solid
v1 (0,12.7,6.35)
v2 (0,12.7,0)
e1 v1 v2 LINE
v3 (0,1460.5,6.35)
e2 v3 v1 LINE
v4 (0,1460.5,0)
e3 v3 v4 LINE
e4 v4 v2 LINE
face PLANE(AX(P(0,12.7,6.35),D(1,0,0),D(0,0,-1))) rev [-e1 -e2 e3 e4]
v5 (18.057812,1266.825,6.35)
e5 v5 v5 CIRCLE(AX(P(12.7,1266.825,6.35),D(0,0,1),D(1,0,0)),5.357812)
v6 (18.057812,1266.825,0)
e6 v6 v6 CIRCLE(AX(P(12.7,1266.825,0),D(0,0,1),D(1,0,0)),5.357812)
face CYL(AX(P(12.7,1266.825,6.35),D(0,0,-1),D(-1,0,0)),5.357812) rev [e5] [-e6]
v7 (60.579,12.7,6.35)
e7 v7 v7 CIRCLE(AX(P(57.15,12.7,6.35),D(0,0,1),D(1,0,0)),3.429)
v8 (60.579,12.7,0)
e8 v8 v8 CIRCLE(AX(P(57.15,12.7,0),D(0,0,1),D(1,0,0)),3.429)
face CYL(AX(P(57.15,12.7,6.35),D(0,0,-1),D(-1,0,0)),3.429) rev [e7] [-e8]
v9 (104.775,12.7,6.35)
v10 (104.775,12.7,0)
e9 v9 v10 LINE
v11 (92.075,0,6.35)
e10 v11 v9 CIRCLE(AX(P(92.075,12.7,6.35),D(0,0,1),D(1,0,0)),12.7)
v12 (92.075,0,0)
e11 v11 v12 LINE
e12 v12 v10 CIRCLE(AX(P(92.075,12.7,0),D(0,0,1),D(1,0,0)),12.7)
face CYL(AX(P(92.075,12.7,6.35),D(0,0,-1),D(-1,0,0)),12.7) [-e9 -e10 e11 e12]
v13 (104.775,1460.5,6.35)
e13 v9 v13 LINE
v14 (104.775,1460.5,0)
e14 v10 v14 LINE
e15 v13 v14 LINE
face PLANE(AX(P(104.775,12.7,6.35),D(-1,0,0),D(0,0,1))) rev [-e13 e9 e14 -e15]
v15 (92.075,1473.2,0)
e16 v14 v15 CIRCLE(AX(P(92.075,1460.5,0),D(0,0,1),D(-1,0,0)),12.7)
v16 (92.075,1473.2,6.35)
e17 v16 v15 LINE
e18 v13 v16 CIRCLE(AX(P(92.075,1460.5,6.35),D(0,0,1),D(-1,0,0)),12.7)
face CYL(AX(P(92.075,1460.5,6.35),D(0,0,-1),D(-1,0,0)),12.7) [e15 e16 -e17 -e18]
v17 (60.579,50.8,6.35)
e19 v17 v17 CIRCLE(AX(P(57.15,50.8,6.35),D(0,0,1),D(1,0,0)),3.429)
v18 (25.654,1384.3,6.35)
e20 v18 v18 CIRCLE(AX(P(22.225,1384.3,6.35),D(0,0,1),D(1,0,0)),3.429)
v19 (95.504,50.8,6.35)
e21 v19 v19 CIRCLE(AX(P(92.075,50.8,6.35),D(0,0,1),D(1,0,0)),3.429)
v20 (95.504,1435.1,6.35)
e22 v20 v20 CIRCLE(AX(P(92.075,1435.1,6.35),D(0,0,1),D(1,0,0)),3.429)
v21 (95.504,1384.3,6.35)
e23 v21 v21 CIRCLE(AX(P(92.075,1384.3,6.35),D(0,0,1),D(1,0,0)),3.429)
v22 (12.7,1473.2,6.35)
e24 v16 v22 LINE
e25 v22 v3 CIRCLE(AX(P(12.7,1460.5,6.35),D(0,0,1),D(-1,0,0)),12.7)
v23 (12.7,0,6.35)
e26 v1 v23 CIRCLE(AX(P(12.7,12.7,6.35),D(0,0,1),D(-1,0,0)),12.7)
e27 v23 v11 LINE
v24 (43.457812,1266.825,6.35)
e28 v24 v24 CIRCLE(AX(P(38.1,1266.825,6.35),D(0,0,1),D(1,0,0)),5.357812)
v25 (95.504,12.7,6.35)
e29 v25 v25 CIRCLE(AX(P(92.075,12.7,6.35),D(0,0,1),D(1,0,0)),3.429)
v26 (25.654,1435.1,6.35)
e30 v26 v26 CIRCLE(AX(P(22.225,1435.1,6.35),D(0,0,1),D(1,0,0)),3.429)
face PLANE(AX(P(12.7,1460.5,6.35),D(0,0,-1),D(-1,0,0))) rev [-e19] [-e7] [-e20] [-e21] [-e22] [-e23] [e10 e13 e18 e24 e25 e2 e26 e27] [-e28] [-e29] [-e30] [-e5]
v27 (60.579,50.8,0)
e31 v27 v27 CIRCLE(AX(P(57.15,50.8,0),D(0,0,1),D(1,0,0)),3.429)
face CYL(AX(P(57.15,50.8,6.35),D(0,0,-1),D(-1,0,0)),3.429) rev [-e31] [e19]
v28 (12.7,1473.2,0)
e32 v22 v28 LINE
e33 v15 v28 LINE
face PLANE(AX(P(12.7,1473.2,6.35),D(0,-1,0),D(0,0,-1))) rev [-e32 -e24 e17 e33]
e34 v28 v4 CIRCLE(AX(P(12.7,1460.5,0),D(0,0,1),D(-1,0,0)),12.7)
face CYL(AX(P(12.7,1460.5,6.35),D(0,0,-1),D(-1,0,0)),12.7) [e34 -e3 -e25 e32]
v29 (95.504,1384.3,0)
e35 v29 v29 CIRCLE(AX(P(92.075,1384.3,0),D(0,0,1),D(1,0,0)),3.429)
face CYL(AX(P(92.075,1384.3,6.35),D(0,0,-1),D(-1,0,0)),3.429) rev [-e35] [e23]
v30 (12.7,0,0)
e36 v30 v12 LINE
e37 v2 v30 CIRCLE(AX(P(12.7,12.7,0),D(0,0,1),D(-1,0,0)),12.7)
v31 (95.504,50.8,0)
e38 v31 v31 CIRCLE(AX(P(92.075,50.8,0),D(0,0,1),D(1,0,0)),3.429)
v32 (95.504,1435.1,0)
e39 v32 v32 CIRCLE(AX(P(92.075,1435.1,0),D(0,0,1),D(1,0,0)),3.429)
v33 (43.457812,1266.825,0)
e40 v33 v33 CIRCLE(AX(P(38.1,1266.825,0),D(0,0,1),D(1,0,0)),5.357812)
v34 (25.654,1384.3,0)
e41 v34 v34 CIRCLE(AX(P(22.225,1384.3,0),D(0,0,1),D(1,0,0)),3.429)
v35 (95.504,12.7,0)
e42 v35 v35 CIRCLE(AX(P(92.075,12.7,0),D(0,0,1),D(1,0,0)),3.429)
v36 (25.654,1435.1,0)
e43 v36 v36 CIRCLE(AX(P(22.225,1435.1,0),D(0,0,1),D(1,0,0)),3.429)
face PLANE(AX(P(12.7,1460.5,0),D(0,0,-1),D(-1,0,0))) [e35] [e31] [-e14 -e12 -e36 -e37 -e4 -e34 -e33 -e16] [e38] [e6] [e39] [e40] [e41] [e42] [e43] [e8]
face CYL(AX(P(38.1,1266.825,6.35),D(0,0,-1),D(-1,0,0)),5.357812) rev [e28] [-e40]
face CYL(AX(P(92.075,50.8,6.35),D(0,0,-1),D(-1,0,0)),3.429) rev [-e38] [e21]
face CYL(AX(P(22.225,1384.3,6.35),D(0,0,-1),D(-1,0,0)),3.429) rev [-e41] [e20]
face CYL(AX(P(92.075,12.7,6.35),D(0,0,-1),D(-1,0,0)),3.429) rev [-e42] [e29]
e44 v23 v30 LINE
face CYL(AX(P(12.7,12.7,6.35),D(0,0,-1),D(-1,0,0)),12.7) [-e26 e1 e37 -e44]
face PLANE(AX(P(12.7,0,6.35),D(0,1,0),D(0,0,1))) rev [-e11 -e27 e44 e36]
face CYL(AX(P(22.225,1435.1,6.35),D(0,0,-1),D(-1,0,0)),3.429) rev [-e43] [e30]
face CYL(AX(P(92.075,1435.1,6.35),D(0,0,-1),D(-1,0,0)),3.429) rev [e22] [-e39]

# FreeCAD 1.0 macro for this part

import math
import FreeCAD as App
import Part
import Sketcher
Q = App.Units.Quantity

doc = App.newDocument("Part")
body = doc.addObject("PartDesign::Body", "Body")

sketch1 = doc.addObject("Sketcher::SketchObject", "Sketch")
body.addObject(sketch1)
sketch1.AttachmentSupport = (doc.XY_Plane, [""])
sketch1.MapMode = "FlatFace"
sketch1.addGeometry([
    Part.LineSegment(App.Vector(12.7, 0, 0), App.Vector(92.1, 0, 0)),
    Part.ArcOfCircle(Part.Circle(App.Vector(92.1, 12.7, 0), App.Vector(0, 0, 1), 12.7), math.radians(-90), math.radians(0)),
    Part.LineSegment(App.Vector(104.8, 12.7, 0), App.Vector(104.8, 1460.5, 0)),
    Part.ArcOfCircle(Part.Circle(App.Vector(92.1, 1460.5, 0), App.Vector(0, 0, 1), 12.7), math.radians(0), math.radians(90)),
    Part.LineSegment(App.Vector(92.1, 1473.2, 0), App.Vector(12.7, 1473.2, 0)),
    Part.ArcOfCircle(Part.Circle(App.Vector(12.7, 1460.5, 0), App.Vector(0, 0, 1), 12.7), math.radians(90), math.radians(180)),
    Part.LineSegment(App.Vector(0, 1460.5, 0), App.Vector(0, 12.7, 0)),
    Part.ArcOfCircle(Part.Circle(App.Vector(12.7, 12.7, 0), App.Vector(0, 0, 1), 12.7), math.radians(180), math.radians(270)),
    Part.Circle(App.Vector(57.1, 12.7, 0), App.Vector(0, 0, 1), 3.4),
    Part.Circle(App.Vector(57.1, 50.8, 0), App.Vector(0, 0, 1), 3.4),
    Part.Circle(App.Vector(92.1, 12.7, 0), App.Vector(0, 0, 1), 3.4),
    Part.Circle(App.Vector(92.1, 50.8, 0), App.Vector(0, 0, 1), 3.4),
    Part.Circle(App.Vector(12.7, 1266.8, 0), App.Vector(0, 0, 1), 5.4),
    Part.Circle(App.Vector(22.2, 1384.3, 0), App.Vector(0, 0, 1), 3.4),
    Part.Circle(App.Vector(22.2, 1435.1, 0), App.Vector(0, 0, 1), 3.4),
    Part.Circle(App.Vector(38.1, 1266.8, 0), App.Vector(0, 0, 1), 5.4),
    Part.Circle(App.Vector(92.1, 1384.3, 0), App.Vector(0, 0, 1), 3.4),
    Part.Circle(App.Vector(92.1, 1435.1, 0), App.Vector(0, 0, 1), 3.4),
], False)
sketch1.addConstraint([
    Sketcher.Constraint("Tangent", 0, 2, 1, 1),
    Sketcher.Constraint("Tangent", 1, 2, 2, 1),
    Sketcher.Constraint("Tangent", 2, 2, 3, 1),
    Sketcher.Constraint("Tangent", 3, 2, 4, 1),
    Sketcher.Constraint("Tangent", 4, 2, 5, 1),
    Sketcher.Constraint("Tangent", 5, 2, 6, 1),
    Sketcher.Constraint("Tangent", 6, 2, 7, 1),
    Sketcher.Constraint("Tangent", 7, 2, 0, 1),
    Sketcher.Constraint("Horizontal", 0),
    Sketcher.Constraint("Vertical", 2),
    Sketcher.Constraint("Horizontal", 4),
    Sketcher.Constraint("Vertical", 6),
    Sketcher.Constraint("Coincident", 10, 3, 1, 3),
    Sketcher.Constraint("Equal", 1, 3),
    Sketcher.Constraint("Equal", 3, 5),
    Sketcher.Constraint("Equal", 5, 7),
    Sketcher.Constraint("Equal", 8, 9),
    Sketcher.Constraint("Equal", 9, 10),
    Sketcher.Constraint("Equal", 10, 11),
    Sketcher.Constraint("Equal", 11, 13),
    Sketcher.Constraint("Equal", 13, 14),
    Sketcher.Constraint("Equal", 12, 15),
    Sketcher.Constraint("Equal", 14, 16),
    Sketcher.Constraint("Equal", 16, 17),
    Sketcher.Constraint("PointOnObject", 0, 2, -1),
    Sketcher.Constraint("PointOnObject", 5, 2, -2),
    Sketcher.Constraint("Horizontal", 7, 3, 8, 3),
    Sketcher.Constraint("Horizontal", 9, 3, 11, 3),
    Sketcher.Constraint("Horizontal", 12, 3, 15, 3),
    Sketcher.Constraint("Horizontal", 13, 3, 16, 3),
    Sketcher.Constraint("Horizontal", 14, 3, 17, 3),
    Sketcher.Constraint("Vertical", 8, 3, 9, 3),
    Sketcher.Constraint("Vertical", 10, 3, 11, 3),
    Sketcher.Constraint("Vertical", 7, 3, 12, 3),
    Sketcher.Constraint("Vertical", 13, 3, 14, 3),
    Sketcher.Constraint("Vertical", 11, 3, 16, 3),
    Sketcher.Constraint("Vertical", 16, 3, 17, 3),
    Sketcher.Constraint("Radius", 1, Q("0.5 in")),
    Sketcher.Constraint("Diameter", 8, Q("0.27 in")),
    Sketcher.Constraint("DistanceY", 2, 1, 2, 2, Q("57 in")),
    Sketcher.Constraint("Diameter", 12, Q("0.421875 in")),
    Sketcher.Constraint("DistanceY", -1, 1, 9, 3, Q("2 in")),
    Sketcher.Constraint("DistanceY", 13, 3, 5, 3, Q("3 in")),
    Sketcher.Constraint("DistanceY", 14, 3, 5, 3, Q("1 in")),
    Sketcher.Constraint("DistanceX", 12, 3, 15, 3, Q("1 in")),
    Sketcher.Constraint("DistanceX", 0, 1, 0, 2, Q("3.125 in")),
    Sketcher.Constraint("DistanceX", -1, 1, 8, 3, Q("2.25 in")),
    Sketcher.Constraint("DistanceX", 13, 3, 3, 3, Q("2.75 in")),
    Sketcher.Constraint("DistanceY", -1, 1, 12, 3, Q("49.875 in")),
])
pad1 = doc.addObject("PartDesign::Pad", "Pad")
body.addObject(pad1)
pad1.Profile = sketch1
pad1.Length = Q("0.25 in")

doc.recompute()
